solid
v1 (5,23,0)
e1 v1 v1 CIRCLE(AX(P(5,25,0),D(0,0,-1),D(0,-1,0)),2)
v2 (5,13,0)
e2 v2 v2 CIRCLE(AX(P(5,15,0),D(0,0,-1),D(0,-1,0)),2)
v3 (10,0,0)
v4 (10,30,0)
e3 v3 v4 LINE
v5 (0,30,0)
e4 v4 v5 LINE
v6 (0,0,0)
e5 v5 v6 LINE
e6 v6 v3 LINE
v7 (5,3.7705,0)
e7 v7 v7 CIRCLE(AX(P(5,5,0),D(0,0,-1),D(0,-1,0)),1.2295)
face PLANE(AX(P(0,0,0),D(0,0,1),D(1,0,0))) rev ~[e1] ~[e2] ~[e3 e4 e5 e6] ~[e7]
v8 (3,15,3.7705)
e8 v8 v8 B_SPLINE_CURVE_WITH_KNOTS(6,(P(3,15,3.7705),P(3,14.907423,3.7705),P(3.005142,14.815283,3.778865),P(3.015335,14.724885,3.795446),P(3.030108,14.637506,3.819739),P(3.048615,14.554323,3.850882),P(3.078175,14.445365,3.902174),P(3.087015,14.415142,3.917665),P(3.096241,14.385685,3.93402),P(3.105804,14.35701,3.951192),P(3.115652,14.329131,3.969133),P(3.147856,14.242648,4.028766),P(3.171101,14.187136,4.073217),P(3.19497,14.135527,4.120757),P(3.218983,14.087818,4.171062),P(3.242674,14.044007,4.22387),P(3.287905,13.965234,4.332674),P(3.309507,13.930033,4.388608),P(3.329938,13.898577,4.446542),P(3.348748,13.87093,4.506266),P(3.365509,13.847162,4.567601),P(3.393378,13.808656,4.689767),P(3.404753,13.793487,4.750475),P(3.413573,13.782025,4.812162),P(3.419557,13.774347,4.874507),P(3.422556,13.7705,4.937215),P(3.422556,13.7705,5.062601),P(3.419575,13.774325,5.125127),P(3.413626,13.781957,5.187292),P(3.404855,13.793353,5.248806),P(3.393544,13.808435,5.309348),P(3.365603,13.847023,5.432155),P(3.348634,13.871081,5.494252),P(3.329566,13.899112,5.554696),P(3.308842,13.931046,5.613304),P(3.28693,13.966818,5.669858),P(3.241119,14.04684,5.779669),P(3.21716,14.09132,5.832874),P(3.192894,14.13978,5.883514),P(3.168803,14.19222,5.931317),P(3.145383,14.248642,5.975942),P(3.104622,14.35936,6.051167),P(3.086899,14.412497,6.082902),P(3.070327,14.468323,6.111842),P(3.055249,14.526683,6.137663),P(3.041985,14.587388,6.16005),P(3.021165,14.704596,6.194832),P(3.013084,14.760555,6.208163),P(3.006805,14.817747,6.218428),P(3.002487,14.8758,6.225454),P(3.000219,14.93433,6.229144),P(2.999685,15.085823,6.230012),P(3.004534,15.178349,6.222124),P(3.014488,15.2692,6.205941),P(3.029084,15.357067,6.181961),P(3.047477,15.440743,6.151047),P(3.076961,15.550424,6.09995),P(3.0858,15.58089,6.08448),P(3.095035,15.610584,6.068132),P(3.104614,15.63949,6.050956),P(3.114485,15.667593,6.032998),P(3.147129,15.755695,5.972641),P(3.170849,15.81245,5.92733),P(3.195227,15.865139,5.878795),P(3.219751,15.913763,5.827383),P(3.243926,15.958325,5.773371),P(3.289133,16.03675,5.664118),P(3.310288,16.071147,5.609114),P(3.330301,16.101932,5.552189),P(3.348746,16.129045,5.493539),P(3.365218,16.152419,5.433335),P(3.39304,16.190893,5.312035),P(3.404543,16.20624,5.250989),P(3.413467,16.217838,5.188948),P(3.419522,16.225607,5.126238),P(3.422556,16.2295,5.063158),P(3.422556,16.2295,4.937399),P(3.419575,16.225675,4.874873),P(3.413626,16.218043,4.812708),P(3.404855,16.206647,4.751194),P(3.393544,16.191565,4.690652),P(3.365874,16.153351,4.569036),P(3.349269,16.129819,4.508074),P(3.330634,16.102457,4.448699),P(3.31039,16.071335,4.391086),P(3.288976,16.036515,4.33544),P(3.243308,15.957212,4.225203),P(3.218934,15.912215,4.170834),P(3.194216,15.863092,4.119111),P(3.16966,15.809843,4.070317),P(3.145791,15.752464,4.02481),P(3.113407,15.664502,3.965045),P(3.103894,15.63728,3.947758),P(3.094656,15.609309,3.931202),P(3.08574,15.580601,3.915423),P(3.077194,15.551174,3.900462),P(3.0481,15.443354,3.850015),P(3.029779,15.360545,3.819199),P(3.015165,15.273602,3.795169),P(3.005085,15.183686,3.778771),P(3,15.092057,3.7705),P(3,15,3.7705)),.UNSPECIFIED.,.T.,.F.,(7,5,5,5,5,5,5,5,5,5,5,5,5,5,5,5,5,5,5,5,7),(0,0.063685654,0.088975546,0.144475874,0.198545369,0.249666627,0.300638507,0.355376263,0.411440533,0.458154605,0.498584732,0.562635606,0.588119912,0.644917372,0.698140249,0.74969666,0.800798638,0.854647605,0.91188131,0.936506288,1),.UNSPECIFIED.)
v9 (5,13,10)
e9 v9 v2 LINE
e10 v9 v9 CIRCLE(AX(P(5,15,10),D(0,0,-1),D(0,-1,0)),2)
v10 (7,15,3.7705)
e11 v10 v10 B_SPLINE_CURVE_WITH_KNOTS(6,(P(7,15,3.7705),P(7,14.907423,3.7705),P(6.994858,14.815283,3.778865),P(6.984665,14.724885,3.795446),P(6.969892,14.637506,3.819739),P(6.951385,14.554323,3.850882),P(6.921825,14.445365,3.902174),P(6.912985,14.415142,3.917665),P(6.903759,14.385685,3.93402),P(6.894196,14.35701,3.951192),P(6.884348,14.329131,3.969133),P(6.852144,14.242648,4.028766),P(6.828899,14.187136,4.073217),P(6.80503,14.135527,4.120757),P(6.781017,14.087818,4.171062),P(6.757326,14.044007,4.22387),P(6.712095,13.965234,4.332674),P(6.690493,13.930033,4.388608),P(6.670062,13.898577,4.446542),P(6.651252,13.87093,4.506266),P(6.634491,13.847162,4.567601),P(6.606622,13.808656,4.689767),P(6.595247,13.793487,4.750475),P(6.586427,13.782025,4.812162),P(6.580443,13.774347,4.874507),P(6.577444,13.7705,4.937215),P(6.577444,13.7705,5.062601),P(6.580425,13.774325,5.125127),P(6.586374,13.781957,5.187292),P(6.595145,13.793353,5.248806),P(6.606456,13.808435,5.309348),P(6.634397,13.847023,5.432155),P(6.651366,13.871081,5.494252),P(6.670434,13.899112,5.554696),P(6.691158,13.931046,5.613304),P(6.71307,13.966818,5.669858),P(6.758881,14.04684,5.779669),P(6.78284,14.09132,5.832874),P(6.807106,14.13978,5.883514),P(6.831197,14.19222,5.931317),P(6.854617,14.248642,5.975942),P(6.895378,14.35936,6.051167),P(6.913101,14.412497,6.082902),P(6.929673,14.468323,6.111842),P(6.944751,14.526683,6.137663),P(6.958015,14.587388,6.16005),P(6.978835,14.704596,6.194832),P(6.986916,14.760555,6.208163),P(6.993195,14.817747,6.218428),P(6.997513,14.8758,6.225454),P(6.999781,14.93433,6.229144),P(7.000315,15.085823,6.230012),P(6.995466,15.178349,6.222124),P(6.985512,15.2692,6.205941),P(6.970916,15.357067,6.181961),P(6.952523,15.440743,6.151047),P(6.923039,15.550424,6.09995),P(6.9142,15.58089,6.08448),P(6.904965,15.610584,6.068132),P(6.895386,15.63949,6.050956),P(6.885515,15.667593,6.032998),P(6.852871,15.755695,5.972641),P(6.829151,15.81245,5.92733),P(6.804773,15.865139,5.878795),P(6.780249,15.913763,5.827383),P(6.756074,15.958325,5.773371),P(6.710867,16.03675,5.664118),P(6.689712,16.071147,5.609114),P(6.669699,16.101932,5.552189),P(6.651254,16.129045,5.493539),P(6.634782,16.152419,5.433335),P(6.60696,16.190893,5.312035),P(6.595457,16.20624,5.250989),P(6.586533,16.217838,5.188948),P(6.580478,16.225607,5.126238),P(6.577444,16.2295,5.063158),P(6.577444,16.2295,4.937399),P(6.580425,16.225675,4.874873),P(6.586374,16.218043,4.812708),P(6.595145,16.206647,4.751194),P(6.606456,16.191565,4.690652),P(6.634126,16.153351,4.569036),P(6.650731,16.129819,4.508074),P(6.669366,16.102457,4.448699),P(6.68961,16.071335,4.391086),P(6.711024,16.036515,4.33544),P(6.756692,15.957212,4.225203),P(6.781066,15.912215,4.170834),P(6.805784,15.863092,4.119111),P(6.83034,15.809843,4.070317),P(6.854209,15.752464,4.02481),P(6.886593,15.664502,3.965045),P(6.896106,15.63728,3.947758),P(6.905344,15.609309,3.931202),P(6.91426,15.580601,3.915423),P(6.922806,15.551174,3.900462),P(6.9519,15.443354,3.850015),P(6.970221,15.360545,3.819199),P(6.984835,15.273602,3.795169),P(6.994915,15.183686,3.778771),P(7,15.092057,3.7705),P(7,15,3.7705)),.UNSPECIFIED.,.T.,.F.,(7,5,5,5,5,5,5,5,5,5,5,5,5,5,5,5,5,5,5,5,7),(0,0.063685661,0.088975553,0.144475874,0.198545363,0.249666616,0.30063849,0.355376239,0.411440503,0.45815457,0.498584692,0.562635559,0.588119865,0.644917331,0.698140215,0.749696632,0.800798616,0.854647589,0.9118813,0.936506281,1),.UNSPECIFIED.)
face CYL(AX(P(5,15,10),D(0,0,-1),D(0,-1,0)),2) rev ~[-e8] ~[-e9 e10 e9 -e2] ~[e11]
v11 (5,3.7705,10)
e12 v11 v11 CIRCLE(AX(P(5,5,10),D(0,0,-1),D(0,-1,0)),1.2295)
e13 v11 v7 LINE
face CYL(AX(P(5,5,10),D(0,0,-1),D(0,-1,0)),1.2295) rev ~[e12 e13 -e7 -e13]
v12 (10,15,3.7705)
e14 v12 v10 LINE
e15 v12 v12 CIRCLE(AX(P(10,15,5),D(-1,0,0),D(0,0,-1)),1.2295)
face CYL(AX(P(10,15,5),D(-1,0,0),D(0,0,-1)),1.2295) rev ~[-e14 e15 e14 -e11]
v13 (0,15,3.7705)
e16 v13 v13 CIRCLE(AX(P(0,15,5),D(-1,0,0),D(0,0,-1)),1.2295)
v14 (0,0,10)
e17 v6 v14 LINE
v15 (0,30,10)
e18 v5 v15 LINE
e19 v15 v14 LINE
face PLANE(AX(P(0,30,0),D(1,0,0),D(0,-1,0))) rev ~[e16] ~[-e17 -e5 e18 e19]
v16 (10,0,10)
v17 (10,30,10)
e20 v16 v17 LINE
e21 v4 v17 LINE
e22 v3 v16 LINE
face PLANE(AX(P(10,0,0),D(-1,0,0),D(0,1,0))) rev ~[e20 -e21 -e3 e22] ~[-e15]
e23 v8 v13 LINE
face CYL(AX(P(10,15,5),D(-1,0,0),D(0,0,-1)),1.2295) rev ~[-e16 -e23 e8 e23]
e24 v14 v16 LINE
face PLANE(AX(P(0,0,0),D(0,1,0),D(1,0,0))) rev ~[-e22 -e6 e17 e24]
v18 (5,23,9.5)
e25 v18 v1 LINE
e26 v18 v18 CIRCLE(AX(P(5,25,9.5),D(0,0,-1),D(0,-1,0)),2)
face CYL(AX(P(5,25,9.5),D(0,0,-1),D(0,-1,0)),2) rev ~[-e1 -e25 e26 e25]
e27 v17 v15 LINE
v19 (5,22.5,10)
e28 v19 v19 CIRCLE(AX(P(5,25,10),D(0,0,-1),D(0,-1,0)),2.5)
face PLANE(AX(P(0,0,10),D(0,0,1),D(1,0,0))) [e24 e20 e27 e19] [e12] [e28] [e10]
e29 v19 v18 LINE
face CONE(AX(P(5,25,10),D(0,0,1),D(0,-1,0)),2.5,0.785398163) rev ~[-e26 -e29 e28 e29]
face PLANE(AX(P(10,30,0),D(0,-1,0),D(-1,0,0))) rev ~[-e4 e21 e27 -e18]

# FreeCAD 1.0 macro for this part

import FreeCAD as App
import Part
import Sketcher
from FreeCAD import Vector


def add_polygon(sketch, points):
    """Adds a closed chain of lines whose ends are joined by coincident constraints."""
    first, n = sketch.GeometryCount, len(points)
    for a, b in zip(points, points[1:] + points[:1]):
        sketch.addGeometry(Part.LineSegment(App.Vector(*a, 0), App.Vector(*b, 0)), False)
    for i in range(n):
        sketch.addConstraint(Sketcher.Constraint("Coincident", first + i, 2, first + (i + 1) % n, 1))

doc = App.newDocument("Part")
body = doc.addObject("PartDesign::Body", "Body")

sketch1 = body.newObject("Sketcher::SketchObject", "Sketch")
sketch1.AttachmentSupport = (doc.getObject("XY_Plane"), [""])
sketch1.MapMode = "FlatFace"
add_polygon(sketch1, [(0, 30), (0, 0), (10, 0), (10, 30)])
sketch1.addConstraint(Sketcher.Constraint("Vertical", 0))
sketch1.addConstraint(Sketcher.Constraint("Horizontal", 1))
sketch1.addConstraint(Sketcher.Constraint("Vertical", 2))
sketch1.addConstraint(Sketcher.Constraint("Horizontal", 3))
sketch1.addConstraint(Sketcher.Constraint("Coincident", 0, 2, -1, 1))
sketch1.addConstraint(Sketcher.Constraint("DistanceX", 1, 1, 1, 2, 10.0))
sketch1.addConstraint(Sketcher.Constraint("DistanceY", 0, 2, 0, 1, 30.0))
pad1 = body.newObject("PartDesign::Pad", "Pad")
pad1.Profile = sketch1
pad1.Length = 10

sketch2 = body.newObject("Sketcher::SketchObject", "Sketch001")
sketch2.AttachmentSupport = (doc.getObject("XY_Plane"), [""])
sketch2.MapMode = "FlatFace"
sketch2.AttachmentOffset = App.Placement(Vector(0, 0, 10), App.Rotation())
sketch2.addGeometry(Part.Circle(Vector(5, 15, 0), Vector(0, 0, 1), 2), False)
sketch2.addConstraint(Sketcher.Constraint("Diameter", 0, 4.0))
sketch2.addConstraint(Sketcher.Constraint("DistanceX", -1, 1, 0, 3, 5.0))
sketch2.addConstraint(Sketcher.Constraint("DistanceY", -1, 1, 0, 3, 15.0))
doc.recompute()
hole = body.newObject("PartDesign::Hole", "Hole")
hole.Profile = sketch2
hole.ThreadType = "None"
hole.Diameter = 4
hole.DepthType = "ThroughAll"

sketch3 = body.newObject("Sketcher::SketchObject", "Sketch002")
sketch3.AttachmentSupport = (doc.getObject("XY_Plane"), [""])
sketch3.MapMode = "FlatFace"
sketch3.AttachmentOffset = App.Placement(Vector(0, 0, 10), App.Rotation())
sketch3.addGeometry(Part.Circle(Vector(5, 5, 0), Vector(0, 0, 1), 1.2295), False)
sketch3.addConstraint(Sketcher.Constraint("Diameter", 0, 2.459))
sketch3.addConstraint(Sketcher.Constraint("DistanceX", -1, 1, 0, 3, 5.0))
sketch3.addConstraint(Sketcher.Constraint("DistanceY", -1, 1, 0, 3, 5.0))
doc.recompute()
hole2 = body.newObject("PartDesign::Hole", "Hole001")
hole2.Profile = sketch3
hole2.ThreadType = "None"
hole2.Diameter = 2.459
hole2.DepthType = "ThroughAll"

sketch4 = body.newObject("Sketcher::SketchObject", "Sketch003")
sketch4.AttachmentSupport = (doc.getObject("YZ_Plane"), [""])
sketch4.MapMode = "FlatFace"
sketch4.AttachmentOffset = App.Placement(Vector(0, 0, 10), App.Rotation())
sketch4.addGeometry(Part.Circle(Vector(15, 5, 0), Vector(0, 0, 1), 1.2295), False)
sketch4.addConstraint(Sketcher.Constraint("Diameter", 0, 2.459))
sketch4.addConstraint(Sketcher.Constraint("DistanceX", -1, 1, 0, 3, 15.0))
sketch4.addConstraint(Sketcher.Constraint("DistanceY", -1, 1, 0, 3, 5.0))
doc.recompute()
hole3 = body.newObject("PartDesign::Hole", "Hole002")
hole3.Profile = sketch4
hole3.ThreadType = "None"
hole3.Diameter = 2.459
hole3.DepthType = "ThroughAll"

sketch5 = body.newObject("Sketcher::SketchObject", "Sketch004")
sketch5.AttachmentSupport = (doc.getObject("XY_Plane"), [""])
sketch5.MapMode = "FlatFace"
sketch5.AttachmentOffset = App.Placement(Vector(0, 0, 10), App.Rotation())
sketch5.addGeometry(Part.Circle(Vector(5, 25, 0), Vector(0, 0, 1), 2), False)
sketch5.addConstraint(Sketcher.Constraint("Diameter", 0, 4.0))
sketch5.addConstraint(Sketcher.Constraint("DistanceX", -1, 1, 0, 3, 5.0))
sketch5.addConstraint(Sketcher.Constraint("DistanceY", -1, 1, 0, 3, 25.0))
doc.recompute()
hole4 = body.newObject("PartDesign::Hole", "Hole003")
hole4.Profile = sketch5
hole4.ThreadType = "None"
hole4.Diameter = 4
hole4.DepthType = "Dimension"
hole4.Depth = 10
hole4.DrillPoint = "Angled"
hole4.DrillPointAngle = 118
hole4.HoleCutType = "Countersink"
hole4.HoleCutDiameter = 5
hole4.HoleCutCountersinkAngle = 90

doc.recompute()
